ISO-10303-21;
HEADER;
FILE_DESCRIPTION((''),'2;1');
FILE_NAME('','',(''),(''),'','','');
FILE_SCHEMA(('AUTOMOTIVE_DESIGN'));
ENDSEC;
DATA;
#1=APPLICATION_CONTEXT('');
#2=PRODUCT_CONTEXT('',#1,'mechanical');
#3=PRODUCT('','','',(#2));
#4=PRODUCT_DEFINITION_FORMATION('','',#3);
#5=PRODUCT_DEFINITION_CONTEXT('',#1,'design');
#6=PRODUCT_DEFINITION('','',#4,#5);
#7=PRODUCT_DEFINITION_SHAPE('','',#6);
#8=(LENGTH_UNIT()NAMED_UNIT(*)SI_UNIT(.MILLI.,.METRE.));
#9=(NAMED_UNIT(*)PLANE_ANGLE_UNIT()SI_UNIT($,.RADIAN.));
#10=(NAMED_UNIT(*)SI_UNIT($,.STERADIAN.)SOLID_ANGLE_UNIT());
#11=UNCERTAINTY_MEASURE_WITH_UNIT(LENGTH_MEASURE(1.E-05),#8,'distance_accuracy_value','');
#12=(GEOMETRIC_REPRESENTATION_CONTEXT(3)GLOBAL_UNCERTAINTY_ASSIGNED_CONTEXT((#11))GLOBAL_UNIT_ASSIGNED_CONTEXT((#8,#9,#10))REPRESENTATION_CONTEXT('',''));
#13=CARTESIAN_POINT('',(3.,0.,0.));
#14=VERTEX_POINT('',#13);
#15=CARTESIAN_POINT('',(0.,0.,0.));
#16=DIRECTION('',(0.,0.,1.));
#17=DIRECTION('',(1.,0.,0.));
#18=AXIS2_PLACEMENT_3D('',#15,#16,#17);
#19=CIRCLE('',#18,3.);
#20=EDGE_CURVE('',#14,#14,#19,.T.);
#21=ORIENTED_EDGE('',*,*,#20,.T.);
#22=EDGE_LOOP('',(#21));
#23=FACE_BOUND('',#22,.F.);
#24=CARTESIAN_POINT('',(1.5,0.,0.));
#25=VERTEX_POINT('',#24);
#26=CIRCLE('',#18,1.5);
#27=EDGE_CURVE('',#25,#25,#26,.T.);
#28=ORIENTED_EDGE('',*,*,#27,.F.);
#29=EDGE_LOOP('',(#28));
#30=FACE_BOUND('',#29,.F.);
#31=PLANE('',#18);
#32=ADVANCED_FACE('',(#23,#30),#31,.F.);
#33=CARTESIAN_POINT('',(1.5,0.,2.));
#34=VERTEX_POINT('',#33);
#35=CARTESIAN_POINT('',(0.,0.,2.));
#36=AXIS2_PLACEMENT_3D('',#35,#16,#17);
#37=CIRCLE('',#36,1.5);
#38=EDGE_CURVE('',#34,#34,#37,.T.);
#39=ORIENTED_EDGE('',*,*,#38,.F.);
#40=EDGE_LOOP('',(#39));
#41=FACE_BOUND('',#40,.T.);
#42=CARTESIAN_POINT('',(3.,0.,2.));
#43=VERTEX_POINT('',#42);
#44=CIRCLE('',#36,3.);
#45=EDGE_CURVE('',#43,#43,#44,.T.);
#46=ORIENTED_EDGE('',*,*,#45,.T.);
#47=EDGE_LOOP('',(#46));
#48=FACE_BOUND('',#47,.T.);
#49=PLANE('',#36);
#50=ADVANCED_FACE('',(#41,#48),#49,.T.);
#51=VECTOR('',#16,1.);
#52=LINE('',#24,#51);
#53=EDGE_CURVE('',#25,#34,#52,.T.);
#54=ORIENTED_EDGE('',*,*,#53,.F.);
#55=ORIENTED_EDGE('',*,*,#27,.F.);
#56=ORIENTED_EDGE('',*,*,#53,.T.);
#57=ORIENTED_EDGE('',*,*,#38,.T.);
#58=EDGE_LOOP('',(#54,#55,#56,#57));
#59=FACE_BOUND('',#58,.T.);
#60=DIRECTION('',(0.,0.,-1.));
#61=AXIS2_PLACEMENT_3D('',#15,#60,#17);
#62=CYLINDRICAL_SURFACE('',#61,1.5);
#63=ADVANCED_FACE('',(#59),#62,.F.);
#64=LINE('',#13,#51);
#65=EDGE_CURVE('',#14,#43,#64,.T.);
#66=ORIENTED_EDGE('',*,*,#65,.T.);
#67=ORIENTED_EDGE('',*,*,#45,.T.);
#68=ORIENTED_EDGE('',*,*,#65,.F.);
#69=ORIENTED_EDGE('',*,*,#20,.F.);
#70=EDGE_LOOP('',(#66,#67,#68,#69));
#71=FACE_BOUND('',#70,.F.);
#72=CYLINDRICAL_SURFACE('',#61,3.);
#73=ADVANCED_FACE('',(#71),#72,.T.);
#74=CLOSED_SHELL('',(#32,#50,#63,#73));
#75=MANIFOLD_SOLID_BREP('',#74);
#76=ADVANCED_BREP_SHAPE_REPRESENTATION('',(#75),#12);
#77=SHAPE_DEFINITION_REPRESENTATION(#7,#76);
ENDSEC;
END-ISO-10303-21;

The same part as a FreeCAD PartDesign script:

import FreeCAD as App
import Part
import Sketcher

V = App.Vector
Q = App.Units.Quantity

doc = App.newDocument("Part")
body = doc.addObject("PartDesign::Body", "Body")

sketch1 = body.newObject("Sketcher::SketchObject", "Sketch")
sketch1.AttachmentSupport = (doc.getObject("XY_Plane"), [""])
sketch1.MapMode = "FlatFace"
sketch1.addGeometry([
    Part.Circle(V(0, 0, 0), V(0, 0, 1), 3),
    Part.Circle(V(0, 0, 0), V(0, 0, 1), 1.5),
], False)
sketch1.addConstraint([
    Sketcher.Constraint("Coincident", 0, 3, -1, 1),
    Sketcher.Constraint("Coincident", 1, 3, -1, 1),
    Sketcher.Constraint("Diameter", 0, Q("6 mm")),
    Sketcher.Constraint("Diameter", 1, Q("3 mm")),
])
pad1 = body.newObject("PartDesign::Pad", "Pad")
pad1.Profile = sketch1
pad1.Length = 2

doc.recompute()
